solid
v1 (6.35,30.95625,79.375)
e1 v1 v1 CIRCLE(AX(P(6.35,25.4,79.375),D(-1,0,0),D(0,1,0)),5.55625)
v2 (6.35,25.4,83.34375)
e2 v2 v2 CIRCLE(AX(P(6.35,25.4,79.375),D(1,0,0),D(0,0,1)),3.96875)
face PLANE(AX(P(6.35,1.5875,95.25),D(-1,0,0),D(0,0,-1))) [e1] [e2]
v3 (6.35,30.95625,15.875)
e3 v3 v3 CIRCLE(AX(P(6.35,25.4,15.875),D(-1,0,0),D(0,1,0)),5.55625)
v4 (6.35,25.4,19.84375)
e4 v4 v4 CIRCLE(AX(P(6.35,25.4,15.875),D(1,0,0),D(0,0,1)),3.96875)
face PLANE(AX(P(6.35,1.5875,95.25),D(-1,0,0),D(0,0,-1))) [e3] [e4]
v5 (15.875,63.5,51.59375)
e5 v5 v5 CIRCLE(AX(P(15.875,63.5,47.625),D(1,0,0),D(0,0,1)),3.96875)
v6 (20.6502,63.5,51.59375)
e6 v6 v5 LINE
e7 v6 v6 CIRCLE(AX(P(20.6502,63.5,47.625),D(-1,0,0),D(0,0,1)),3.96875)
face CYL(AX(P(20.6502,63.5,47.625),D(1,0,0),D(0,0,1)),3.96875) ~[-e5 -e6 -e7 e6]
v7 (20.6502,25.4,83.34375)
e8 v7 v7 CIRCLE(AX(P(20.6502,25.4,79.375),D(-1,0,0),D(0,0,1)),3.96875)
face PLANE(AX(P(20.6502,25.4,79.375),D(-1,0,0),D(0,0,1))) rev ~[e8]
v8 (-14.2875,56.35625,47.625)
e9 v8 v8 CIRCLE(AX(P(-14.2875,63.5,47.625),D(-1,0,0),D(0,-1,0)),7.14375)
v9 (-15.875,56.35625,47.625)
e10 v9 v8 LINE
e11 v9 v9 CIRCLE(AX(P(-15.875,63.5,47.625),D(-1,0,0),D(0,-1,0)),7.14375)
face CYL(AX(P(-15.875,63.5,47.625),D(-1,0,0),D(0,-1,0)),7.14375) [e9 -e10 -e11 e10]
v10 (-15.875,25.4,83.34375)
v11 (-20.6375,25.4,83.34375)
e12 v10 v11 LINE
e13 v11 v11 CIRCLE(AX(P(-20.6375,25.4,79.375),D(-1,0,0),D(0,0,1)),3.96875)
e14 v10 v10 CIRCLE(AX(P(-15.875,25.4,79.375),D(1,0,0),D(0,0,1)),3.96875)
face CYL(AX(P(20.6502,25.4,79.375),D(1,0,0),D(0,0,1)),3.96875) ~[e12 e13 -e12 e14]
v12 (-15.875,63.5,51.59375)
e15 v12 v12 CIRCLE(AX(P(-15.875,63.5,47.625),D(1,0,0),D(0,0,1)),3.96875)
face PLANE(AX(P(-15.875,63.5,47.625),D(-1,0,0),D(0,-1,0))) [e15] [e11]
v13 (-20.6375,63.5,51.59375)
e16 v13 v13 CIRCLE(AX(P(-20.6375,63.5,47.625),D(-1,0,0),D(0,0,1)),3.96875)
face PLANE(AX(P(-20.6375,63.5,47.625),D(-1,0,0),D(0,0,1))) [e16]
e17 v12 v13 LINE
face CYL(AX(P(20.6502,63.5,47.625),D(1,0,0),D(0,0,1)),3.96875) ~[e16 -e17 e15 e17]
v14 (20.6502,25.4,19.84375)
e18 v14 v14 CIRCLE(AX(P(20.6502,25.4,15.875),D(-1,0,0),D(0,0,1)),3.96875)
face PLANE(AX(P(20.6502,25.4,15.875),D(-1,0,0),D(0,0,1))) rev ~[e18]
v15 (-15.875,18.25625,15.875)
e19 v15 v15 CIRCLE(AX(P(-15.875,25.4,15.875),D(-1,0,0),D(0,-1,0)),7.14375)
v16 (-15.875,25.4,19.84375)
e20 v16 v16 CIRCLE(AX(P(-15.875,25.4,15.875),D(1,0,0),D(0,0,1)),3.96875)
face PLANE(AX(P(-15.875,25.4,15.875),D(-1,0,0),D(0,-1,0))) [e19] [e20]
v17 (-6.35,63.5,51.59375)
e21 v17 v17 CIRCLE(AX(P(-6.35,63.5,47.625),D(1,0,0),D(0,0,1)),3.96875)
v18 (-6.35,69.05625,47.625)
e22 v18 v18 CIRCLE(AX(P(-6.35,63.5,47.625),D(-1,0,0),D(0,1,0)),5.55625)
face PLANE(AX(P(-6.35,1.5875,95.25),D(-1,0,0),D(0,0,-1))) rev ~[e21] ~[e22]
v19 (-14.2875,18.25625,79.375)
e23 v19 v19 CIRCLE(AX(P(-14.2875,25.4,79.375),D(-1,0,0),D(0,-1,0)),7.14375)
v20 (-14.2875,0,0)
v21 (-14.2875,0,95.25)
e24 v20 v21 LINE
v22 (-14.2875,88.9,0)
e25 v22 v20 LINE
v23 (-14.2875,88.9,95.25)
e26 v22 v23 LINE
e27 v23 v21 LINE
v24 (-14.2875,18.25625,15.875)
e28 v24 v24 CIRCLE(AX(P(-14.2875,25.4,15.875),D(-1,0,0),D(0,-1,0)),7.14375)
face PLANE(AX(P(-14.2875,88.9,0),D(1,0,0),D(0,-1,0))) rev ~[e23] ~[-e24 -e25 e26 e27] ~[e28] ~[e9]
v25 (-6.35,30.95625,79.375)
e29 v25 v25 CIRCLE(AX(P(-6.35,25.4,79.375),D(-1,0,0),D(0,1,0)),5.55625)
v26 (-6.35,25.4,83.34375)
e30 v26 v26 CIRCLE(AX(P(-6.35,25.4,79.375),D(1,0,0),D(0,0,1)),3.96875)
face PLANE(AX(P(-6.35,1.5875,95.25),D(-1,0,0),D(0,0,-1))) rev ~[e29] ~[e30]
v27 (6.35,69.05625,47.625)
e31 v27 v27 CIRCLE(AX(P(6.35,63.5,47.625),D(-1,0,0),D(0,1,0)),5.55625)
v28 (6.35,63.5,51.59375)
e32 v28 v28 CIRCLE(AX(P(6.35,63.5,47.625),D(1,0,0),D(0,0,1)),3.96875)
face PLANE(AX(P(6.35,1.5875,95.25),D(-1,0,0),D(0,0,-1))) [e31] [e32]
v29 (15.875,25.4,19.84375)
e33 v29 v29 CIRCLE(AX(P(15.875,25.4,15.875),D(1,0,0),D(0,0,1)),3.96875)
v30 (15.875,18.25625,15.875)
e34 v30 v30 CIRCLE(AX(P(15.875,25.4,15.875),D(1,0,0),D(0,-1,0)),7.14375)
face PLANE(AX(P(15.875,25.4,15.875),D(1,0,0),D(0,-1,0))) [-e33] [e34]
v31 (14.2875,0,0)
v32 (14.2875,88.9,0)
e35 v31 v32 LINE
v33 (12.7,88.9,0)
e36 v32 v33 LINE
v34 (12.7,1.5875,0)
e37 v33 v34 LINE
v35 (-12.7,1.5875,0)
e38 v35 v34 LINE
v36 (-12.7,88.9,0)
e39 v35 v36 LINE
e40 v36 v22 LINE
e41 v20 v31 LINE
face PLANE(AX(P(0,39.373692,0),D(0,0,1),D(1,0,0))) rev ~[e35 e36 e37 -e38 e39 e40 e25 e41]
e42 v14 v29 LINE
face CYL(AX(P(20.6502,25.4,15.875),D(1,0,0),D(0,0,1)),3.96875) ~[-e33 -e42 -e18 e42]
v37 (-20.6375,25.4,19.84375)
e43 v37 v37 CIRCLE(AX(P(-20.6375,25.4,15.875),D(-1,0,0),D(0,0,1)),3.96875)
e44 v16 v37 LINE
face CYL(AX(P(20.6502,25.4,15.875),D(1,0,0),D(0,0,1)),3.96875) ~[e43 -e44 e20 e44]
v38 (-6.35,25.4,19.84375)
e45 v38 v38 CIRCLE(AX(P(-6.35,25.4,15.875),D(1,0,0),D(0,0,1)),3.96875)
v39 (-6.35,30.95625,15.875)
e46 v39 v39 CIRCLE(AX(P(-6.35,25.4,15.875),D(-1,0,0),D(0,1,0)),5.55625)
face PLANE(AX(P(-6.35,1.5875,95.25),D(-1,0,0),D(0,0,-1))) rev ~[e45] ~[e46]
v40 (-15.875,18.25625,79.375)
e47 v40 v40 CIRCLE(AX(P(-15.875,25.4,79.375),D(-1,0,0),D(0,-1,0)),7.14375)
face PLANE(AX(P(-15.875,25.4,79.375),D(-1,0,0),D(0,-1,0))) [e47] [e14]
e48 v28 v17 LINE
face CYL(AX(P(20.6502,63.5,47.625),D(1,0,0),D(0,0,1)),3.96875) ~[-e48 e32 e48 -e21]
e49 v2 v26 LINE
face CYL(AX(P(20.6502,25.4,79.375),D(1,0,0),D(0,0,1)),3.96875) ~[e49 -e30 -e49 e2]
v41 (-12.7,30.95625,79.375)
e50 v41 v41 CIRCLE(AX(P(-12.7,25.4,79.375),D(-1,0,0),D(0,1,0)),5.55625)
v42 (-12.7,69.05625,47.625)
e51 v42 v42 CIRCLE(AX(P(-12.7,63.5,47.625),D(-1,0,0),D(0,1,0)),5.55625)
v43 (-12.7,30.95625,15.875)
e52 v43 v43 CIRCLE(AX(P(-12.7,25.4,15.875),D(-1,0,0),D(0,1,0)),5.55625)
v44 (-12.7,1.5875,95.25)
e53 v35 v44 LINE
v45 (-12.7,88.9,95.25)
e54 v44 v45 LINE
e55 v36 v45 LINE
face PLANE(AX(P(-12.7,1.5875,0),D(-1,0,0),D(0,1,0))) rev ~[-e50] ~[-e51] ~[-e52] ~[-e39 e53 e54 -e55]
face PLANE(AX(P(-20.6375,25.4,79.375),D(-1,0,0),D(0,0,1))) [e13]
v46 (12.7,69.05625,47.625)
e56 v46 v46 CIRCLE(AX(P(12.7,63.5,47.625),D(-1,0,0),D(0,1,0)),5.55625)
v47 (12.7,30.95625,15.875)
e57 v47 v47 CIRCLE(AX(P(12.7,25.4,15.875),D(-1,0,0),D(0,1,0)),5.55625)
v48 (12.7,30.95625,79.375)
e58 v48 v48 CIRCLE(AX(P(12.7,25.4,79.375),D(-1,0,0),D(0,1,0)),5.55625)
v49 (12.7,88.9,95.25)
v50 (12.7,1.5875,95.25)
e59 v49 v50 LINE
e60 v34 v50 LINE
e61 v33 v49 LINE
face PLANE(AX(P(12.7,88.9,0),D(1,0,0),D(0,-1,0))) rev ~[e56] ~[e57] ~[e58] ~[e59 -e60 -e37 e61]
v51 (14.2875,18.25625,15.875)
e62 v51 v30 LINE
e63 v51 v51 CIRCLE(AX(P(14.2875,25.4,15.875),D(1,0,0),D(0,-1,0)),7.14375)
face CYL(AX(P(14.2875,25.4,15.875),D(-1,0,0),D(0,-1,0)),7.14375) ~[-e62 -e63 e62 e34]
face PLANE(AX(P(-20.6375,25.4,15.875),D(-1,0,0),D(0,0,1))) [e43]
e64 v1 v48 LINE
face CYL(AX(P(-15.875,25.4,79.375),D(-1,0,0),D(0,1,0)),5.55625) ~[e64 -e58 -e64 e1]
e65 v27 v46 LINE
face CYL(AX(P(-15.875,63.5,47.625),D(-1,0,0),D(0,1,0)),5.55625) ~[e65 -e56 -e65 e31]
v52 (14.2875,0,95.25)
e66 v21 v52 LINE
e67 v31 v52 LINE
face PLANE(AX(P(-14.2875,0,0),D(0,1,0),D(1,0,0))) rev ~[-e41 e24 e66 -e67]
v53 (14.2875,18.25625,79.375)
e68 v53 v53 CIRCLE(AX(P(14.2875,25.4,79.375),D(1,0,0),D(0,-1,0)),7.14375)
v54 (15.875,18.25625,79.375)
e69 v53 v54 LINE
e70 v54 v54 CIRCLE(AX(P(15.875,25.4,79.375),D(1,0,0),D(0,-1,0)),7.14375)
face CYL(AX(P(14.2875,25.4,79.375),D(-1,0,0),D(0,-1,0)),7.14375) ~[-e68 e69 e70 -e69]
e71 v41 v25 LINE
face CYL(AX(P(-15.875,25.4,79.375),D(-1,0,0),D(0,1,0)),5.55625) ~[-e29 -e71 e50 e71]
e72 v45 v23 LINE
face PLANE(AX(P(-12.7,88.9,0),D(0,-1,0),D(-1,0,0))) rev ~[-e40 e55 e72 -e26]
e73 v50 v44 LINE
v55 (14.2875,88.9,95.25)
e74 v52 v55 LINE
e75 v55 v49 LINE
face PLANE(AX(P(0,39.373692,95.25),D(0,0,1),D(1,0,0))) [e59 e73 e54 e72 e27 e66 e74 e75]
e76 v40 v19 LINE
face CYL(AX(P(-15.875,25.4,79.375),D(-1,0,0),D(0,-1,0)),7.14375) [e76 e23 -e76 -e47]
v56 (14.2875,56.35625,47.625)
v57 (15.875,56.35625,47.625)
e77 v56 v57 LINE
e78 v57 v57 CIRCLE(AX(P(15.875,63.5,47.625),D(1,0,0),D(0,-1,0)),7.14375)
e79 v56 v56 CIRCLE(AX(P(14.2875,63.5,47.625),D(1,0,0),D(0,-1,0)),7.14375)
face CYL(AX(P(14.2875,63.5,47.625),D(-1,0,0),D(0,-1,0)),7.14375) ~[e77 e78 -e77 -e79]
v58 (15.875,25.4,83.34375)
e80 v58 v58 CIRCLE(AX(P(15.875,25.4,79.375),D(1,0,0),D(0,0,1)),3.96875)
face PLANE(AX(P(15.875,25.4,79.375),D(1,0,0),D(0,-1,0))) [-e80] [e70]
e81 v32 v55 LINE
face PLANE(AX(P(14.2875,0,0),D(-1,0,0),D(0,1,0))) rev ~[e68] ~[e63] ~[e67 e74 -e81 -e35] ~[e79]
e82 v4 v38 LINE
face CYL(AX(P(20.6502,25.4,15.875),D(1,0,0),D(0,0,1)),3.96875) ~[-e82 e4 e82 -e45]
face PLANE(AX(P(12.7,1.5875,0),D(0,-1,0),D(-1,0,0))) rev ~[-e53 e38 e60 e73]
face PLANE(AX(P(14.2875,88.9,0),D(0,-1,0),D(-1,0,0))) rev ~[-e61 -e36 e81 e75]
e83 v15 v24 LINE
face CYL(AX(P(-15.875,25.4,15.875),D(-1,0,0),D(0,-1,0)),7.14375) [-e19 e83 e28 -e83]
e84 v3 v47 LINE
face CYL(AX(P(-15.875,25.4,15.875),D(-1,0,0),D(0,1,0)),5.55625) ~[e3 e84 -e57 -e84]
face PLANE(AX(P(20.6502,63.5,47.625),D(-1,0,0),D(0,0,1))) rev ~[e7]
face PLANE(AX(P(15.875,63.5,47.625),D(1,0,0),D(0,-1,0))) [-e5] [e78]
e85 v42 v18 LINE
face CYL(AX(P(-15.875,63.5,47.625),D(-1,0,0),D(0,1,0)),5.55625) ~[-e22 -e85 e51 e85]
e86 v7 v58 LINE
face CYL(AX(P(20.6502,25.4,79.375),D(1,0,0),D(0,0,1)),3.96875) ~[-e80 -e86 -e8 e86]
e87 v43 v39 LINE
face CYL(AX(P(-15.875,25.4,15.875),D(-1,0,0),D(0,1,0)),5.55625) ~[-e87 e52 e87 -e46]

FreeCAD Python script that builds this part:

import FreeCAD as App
import Part
import Sketcher
Q = App.Units.Quantity


def add_polygon(sketch, points):
    """Adds a closed chain of lines whose ends are joined by coincident constraints."""
    first, n = sketch.GeometryCount, len(points)
    for a, b in zip(points, points[1:] + points[:1]):
        sketch.addGeometry(Part.LineSegment(App.Vector(*a, 0), App.Vector(*b, 0)), False)
    for i in range(n):
        sketch.addConstraint(Sketcher.Constraint("Coincident", first + i, 2, first + (i + 1) % n, 1))

doc = App.newDocument("Part")
body = doc.addObject("PartDesign::Body", "Body")

# Sketch on XY plane
sketch1 = doc.addObject("Sketcher::SketchObject", "Sketch")
body.addObject(sketch1)
sketch1.AttachmentSupport = (doc.XY_Plane, [""])
sketch1.MapMode = "FlatFace"
add_polygon(sketch1, [(-14.3, 88.9), (-14.3, 0), (14.3, 0), (14.3, 88.9), (12.7, 88.9), (12.7, 1.6), (-12.7, 1.6), (-12.7, 88.9)])  # lines 0-7
sketch1.addConstraint([
    Sketcher.Constraint("Vertical", 0),
    Sketcher.Constraint("Horizontal", 1),
    Sketcher.Constraint("Vertical", 2),
    Sketcher.Constraint("Horizontal", 3),
    Sketcher.Constraint("Vertical", 4),
    Sketcher.Constraint("Horizontal", 5),
    Sketcher.Constraint("Vertical", 6),
    Sketcher.Constraint("Horizontal", 7),
    Sketcher.Constraint("Symmetric", 0, 2, 1, 2, -1, 1),
    Sketcher.Constraint("Symmetric", 3, 2, 6, 2, -2),
    Sketcher.Constraint("DistanceX", 5, 2, 5, 1, Q("1 in")),
    Sketcher.Constraint("DistanceY", 0, 2, 0, 1, Q("3.5 in")),
    Sketcher.Constraint("DistanceX", 1, 1, 1, 2, Q("1.125 in")),
    Sketcher.Constraint("DistanceY", 4, 2, 4, 1, Q("3.4375 in")),
])
pad1 = doc.addObject("PartDesign::Pad", "Pad")
body.addObject(pad1)
pad1.Profile = sketch1
pad1.Length = Q("3.75 in")

# Sketch on YZ plane
sketch2 = doc.addObject("Sketcher::SketchObject", "Sketch001")
body.addObject(sketch2)
sketch2.AttachmentSupport = (doc.YZ_Plane, [""])
sketch2.MapMode = "FlatFace"
sketch2.AttachmentOffset = App.Placement(App.Vector(0, 0, 0.5625 * 25.4), App.Rotation())
sketch2.addGeometry([
    Part.Circle(App.Vector(64, 48, 0), App.Vector(0, 0, 1), 6),
    Part.Circle(App.Vector(25, 79, 0), App.Vector(0, 0, 1), 6),
    Part.Circle(App.Vector(25, 16, 0), App.Vector(0, 0, 1), 6),
], False)
sketch2.addConstraint([
    Sketcher.Constraint("Equal", 0, 1),
    Sketcher.Constraint("Equal", 1, 2),
    Sketcher.Constraint("Vertical", 1, 3, 2, 3),
    Sketcher.Constraint("Diameter", 0, Q("0.4375 in")),
    Sketcher.Constraint("DistanceX", -1, 1, 1, 3, Q("1 in")),
    Sketcher.Constraint("DistanceX", -1, 1, 0, 3, Q("2.5 in")),
    Sketcher.Constraint("DistanceY", 2, 3, 1, 3, Q("2.5 in")),
    Sketcher.Constraint("DistanceY", 0, 3, 1, 3, Q("1.25 in")),
    Sketcher.Constraint("DistanceY", -1, 1, 0, 3, Q("1.875 in")),
])
pad2 = doc.addObject("PartDesign::Pad", "Pad001")
body.addObject(pad2)
pad2.Profile = sketch2
pad2.Type = "TwoLengths"
pad2.Length = Q("0.0625 in")
pad2.Length2 = Q("1.1875 in")

# Sketch on YZ plane
sketch3 = doc.addObject("Sketcher::SketchObject", "Sketch002")
body.addObject(sketch3)
sketch3.AttachmentSupport = (doc.YZ_Plane, [""])
sketch3.MapMode = "FlatFace"
sketch3.AttachmentOffset = App.Placement(App.Vector(0, 0, 0.5625 * 25.4), App.Rotation())
sketch3.addGeometry([
    Part.Circle(App.Vector(64, 48, 0), App.Vector(0, 0, 1), 7),
    Part.Circle(App.Vector(25, 16, 0), App.Vector(0, 0, 1), 7),
    Part.Circle(App.Vector(25, 79, 0), App.Vector(0, 0, 1), 7),
], False)
sketch3.addConstraint([
    Sketcher.Constraint("Equal", 0, 1),
    Sketcher.Constraint("Equal", 1, 2),
    Sketcher.Constraint("Vertical", 1, 3, 2, 3),
    Sketcher.Constraint("Diameter", 0, Q("0.5625 in")),
    Sketcher.Constraint("DistanceX", -1, 1, 1, 3, Q("1 in")),
    Sketcher.Constraint("DistanceX", -1, 1, 0, 3, Q("2.5 in")),
    Sketcher.Constraint("DistanceY", 1, 3, 2, 3, Q("2.5 in")),
    Sketcher.Constraint("DistanceY", 1, 3, 0, 3, Q("1.25 in")),
    Sketcher.Constraint("DistanceY", -1, 1, 0, 3, Q("1.875 in")),
])
pad3 = doc.addObject("PartDesign::Pad", "Pad002")
body.addObject(pad3)
pad3.Profile = sketch3
pad3.Length = Q("0.0625 in")

# Sketch on YZ plane
sketch4 = doc.addObject("Sketcher::SketchObject", "Sketch003")
body.addObject(sketch4)
sketch4.AttachmentSupport = (doc.YZ_Plane, [""])
sketch4.MapMode = "FlatFace"
sketch4.AttachmentOffset = App.Placement(App.Vector(0, 0, -0.625 * 25.4), App.Rotation())
sketch4.addGeometry([
    Part.Circle(App.Vector(64, 48, 0), App.Vector(0, 0, 1), 7),
    Part.Circle(App.Vector(25, 79, 0), App.Vector(0, 0, 1), 7),
    Part.Circle(App.Vector(25, 16, 0), App.Vector(0, 0, 1), 7),
], False)
sketch4.addConstraint([
    Sketcher.Constraint("Equal", 0, 1),
    Sketcher.Constraint("Equal", 1, 2),
    Sketcher.Constraint("Vertical", 1, 3, 2, 3),
    Sketcher.Constraint("Diameter", 0, Q("0.5625 in")),
    Sketcher.Constraint("DistanceX", -1, 1, 1, 3, Q("1 in")),
    Sketcher.Constraint("DistanceX", -1, 1, 0, 3, Q("2.5 in")),
    Sketcher.Constraint("DistanceY", 2, 3, 1, 3, Q("2.5 in")),
    Sketcher.Constraint("DistanceY", 0, 3, 1, 3, Q("1.25 in")),
    Sketcher.Constraint("DistanceY", -1, 1, 0, 3, Q("1.875 in")),
])
pad4 = doc.addObject("PartDesign::Pad", "Pad003")
body.addObject(pad4)
pad4.Profile = sketch4
pad4.Length = Q("0.0625 in")

# Sketch on XZ plane
sketch5 = doc.addObject("Sketcher::SketchObject", "Sketch004")
body.addObject(sketch5)
sketch5.AttachmentSupport = (doc.XZ_Plane, [""])
sketch5.MapMode = "FlatFace"
sketch5.AttachmentOffset = App.Placement(App.Vector(0, 0, -0.0625 * 25.4), App.Rotation())
add_polygon(sketch5, [(-6, 0), (-6, 95), (6, 95), (6, 0)])  # lines 0-3
sketch5.addConstraint([
    Sketcher.Constraint("Vertical", 0),
    Sketcher.Constraint("Horizontal", 1),
    Sketcher.Constraint("Vertical", 2),
    Sketcher.Constraint("Horizontal", 3),
    Sketcher.Constraint("Symmetric", 2, 2, 3, 2, -1, 1),
    Sketcher.Constraint("DistanceX", 1, 1, 1, 2, Q("0.5 in")),
    Sketcher.Constraint("DistanceY", 0, 1, 0, 2, Q("3.75 in")),
])
pocket1 = doc.addObject("PartDesign::Pocket", "Pocket")
body.addObject(pocket1)
pocket1.Profile = sketch5
pocket1.Type = "ThroughAll"

# Sketch on YZ plane
sketch6 = doc.addObject("Sketcher::SketchObject", "Sketch005")
body.addObject(sketch6)
sketch6.AttachmentSupport = (doc.YZ_Plane, [""])
sketch6.MapMode = "FlatFace"
sketch6.AttachmentOffset = App.Placement(App.Vector(0, 0, -0.5625 * 25.4), App.Rotation())
sketch6.addGeometry([
    Part.Circle(App.Vector(63.5, 47.6, 0), App.Vector(0, 0, 1), 4),
    Part.Circle(App.Vector(25.4, 79.4, 0), App.Vector(0, 0, 1), 4),
    Part.Circle(App.Vector(25.4, 15.9, 0), App.Vector(0, 0, 1), 4),
], False)
sketch6.addConstraint([
    Sketcher.Constraint("Equal", 0, 1),
    Sketcher.Constraint("Equal", 1, 2),
    Sketcher.Constraint("Vertical", 1, 3, 2, 3),
    Sketcher.Constraint("Diameter", 0, Q("0.3125 in")),
    Sketcher.Constraint("DistanceX", -1, 1, 1, 3, Q("1 in")),
    Sketcher.Constraint("DistanceX", -1, 1, 0, 3, Q("2.5 in")),
    Sketcher.Constraint("DistanceY", 2, 3, 1, 3, Q("2.5 in")),
    Sketcher.Constraint("DistanceY", 0, 3, 1, 3, Q("1.25 in")),
    Sketcher.Constraint("DistanceY", -1, 1, 0, 3, Q("1.875 in")),
])
pad5 = doc.addObject("PartDesign::Pad", "Pad004")
body.addObject(pad5)
pad5.Profile = sketch6
pad5.Type = "TwoLengths"
pad5.Length = Q("0.25 in")
pad5.Length2 = Q("1.3755 in")
pad5.Reversed = True

doc.recompute()
